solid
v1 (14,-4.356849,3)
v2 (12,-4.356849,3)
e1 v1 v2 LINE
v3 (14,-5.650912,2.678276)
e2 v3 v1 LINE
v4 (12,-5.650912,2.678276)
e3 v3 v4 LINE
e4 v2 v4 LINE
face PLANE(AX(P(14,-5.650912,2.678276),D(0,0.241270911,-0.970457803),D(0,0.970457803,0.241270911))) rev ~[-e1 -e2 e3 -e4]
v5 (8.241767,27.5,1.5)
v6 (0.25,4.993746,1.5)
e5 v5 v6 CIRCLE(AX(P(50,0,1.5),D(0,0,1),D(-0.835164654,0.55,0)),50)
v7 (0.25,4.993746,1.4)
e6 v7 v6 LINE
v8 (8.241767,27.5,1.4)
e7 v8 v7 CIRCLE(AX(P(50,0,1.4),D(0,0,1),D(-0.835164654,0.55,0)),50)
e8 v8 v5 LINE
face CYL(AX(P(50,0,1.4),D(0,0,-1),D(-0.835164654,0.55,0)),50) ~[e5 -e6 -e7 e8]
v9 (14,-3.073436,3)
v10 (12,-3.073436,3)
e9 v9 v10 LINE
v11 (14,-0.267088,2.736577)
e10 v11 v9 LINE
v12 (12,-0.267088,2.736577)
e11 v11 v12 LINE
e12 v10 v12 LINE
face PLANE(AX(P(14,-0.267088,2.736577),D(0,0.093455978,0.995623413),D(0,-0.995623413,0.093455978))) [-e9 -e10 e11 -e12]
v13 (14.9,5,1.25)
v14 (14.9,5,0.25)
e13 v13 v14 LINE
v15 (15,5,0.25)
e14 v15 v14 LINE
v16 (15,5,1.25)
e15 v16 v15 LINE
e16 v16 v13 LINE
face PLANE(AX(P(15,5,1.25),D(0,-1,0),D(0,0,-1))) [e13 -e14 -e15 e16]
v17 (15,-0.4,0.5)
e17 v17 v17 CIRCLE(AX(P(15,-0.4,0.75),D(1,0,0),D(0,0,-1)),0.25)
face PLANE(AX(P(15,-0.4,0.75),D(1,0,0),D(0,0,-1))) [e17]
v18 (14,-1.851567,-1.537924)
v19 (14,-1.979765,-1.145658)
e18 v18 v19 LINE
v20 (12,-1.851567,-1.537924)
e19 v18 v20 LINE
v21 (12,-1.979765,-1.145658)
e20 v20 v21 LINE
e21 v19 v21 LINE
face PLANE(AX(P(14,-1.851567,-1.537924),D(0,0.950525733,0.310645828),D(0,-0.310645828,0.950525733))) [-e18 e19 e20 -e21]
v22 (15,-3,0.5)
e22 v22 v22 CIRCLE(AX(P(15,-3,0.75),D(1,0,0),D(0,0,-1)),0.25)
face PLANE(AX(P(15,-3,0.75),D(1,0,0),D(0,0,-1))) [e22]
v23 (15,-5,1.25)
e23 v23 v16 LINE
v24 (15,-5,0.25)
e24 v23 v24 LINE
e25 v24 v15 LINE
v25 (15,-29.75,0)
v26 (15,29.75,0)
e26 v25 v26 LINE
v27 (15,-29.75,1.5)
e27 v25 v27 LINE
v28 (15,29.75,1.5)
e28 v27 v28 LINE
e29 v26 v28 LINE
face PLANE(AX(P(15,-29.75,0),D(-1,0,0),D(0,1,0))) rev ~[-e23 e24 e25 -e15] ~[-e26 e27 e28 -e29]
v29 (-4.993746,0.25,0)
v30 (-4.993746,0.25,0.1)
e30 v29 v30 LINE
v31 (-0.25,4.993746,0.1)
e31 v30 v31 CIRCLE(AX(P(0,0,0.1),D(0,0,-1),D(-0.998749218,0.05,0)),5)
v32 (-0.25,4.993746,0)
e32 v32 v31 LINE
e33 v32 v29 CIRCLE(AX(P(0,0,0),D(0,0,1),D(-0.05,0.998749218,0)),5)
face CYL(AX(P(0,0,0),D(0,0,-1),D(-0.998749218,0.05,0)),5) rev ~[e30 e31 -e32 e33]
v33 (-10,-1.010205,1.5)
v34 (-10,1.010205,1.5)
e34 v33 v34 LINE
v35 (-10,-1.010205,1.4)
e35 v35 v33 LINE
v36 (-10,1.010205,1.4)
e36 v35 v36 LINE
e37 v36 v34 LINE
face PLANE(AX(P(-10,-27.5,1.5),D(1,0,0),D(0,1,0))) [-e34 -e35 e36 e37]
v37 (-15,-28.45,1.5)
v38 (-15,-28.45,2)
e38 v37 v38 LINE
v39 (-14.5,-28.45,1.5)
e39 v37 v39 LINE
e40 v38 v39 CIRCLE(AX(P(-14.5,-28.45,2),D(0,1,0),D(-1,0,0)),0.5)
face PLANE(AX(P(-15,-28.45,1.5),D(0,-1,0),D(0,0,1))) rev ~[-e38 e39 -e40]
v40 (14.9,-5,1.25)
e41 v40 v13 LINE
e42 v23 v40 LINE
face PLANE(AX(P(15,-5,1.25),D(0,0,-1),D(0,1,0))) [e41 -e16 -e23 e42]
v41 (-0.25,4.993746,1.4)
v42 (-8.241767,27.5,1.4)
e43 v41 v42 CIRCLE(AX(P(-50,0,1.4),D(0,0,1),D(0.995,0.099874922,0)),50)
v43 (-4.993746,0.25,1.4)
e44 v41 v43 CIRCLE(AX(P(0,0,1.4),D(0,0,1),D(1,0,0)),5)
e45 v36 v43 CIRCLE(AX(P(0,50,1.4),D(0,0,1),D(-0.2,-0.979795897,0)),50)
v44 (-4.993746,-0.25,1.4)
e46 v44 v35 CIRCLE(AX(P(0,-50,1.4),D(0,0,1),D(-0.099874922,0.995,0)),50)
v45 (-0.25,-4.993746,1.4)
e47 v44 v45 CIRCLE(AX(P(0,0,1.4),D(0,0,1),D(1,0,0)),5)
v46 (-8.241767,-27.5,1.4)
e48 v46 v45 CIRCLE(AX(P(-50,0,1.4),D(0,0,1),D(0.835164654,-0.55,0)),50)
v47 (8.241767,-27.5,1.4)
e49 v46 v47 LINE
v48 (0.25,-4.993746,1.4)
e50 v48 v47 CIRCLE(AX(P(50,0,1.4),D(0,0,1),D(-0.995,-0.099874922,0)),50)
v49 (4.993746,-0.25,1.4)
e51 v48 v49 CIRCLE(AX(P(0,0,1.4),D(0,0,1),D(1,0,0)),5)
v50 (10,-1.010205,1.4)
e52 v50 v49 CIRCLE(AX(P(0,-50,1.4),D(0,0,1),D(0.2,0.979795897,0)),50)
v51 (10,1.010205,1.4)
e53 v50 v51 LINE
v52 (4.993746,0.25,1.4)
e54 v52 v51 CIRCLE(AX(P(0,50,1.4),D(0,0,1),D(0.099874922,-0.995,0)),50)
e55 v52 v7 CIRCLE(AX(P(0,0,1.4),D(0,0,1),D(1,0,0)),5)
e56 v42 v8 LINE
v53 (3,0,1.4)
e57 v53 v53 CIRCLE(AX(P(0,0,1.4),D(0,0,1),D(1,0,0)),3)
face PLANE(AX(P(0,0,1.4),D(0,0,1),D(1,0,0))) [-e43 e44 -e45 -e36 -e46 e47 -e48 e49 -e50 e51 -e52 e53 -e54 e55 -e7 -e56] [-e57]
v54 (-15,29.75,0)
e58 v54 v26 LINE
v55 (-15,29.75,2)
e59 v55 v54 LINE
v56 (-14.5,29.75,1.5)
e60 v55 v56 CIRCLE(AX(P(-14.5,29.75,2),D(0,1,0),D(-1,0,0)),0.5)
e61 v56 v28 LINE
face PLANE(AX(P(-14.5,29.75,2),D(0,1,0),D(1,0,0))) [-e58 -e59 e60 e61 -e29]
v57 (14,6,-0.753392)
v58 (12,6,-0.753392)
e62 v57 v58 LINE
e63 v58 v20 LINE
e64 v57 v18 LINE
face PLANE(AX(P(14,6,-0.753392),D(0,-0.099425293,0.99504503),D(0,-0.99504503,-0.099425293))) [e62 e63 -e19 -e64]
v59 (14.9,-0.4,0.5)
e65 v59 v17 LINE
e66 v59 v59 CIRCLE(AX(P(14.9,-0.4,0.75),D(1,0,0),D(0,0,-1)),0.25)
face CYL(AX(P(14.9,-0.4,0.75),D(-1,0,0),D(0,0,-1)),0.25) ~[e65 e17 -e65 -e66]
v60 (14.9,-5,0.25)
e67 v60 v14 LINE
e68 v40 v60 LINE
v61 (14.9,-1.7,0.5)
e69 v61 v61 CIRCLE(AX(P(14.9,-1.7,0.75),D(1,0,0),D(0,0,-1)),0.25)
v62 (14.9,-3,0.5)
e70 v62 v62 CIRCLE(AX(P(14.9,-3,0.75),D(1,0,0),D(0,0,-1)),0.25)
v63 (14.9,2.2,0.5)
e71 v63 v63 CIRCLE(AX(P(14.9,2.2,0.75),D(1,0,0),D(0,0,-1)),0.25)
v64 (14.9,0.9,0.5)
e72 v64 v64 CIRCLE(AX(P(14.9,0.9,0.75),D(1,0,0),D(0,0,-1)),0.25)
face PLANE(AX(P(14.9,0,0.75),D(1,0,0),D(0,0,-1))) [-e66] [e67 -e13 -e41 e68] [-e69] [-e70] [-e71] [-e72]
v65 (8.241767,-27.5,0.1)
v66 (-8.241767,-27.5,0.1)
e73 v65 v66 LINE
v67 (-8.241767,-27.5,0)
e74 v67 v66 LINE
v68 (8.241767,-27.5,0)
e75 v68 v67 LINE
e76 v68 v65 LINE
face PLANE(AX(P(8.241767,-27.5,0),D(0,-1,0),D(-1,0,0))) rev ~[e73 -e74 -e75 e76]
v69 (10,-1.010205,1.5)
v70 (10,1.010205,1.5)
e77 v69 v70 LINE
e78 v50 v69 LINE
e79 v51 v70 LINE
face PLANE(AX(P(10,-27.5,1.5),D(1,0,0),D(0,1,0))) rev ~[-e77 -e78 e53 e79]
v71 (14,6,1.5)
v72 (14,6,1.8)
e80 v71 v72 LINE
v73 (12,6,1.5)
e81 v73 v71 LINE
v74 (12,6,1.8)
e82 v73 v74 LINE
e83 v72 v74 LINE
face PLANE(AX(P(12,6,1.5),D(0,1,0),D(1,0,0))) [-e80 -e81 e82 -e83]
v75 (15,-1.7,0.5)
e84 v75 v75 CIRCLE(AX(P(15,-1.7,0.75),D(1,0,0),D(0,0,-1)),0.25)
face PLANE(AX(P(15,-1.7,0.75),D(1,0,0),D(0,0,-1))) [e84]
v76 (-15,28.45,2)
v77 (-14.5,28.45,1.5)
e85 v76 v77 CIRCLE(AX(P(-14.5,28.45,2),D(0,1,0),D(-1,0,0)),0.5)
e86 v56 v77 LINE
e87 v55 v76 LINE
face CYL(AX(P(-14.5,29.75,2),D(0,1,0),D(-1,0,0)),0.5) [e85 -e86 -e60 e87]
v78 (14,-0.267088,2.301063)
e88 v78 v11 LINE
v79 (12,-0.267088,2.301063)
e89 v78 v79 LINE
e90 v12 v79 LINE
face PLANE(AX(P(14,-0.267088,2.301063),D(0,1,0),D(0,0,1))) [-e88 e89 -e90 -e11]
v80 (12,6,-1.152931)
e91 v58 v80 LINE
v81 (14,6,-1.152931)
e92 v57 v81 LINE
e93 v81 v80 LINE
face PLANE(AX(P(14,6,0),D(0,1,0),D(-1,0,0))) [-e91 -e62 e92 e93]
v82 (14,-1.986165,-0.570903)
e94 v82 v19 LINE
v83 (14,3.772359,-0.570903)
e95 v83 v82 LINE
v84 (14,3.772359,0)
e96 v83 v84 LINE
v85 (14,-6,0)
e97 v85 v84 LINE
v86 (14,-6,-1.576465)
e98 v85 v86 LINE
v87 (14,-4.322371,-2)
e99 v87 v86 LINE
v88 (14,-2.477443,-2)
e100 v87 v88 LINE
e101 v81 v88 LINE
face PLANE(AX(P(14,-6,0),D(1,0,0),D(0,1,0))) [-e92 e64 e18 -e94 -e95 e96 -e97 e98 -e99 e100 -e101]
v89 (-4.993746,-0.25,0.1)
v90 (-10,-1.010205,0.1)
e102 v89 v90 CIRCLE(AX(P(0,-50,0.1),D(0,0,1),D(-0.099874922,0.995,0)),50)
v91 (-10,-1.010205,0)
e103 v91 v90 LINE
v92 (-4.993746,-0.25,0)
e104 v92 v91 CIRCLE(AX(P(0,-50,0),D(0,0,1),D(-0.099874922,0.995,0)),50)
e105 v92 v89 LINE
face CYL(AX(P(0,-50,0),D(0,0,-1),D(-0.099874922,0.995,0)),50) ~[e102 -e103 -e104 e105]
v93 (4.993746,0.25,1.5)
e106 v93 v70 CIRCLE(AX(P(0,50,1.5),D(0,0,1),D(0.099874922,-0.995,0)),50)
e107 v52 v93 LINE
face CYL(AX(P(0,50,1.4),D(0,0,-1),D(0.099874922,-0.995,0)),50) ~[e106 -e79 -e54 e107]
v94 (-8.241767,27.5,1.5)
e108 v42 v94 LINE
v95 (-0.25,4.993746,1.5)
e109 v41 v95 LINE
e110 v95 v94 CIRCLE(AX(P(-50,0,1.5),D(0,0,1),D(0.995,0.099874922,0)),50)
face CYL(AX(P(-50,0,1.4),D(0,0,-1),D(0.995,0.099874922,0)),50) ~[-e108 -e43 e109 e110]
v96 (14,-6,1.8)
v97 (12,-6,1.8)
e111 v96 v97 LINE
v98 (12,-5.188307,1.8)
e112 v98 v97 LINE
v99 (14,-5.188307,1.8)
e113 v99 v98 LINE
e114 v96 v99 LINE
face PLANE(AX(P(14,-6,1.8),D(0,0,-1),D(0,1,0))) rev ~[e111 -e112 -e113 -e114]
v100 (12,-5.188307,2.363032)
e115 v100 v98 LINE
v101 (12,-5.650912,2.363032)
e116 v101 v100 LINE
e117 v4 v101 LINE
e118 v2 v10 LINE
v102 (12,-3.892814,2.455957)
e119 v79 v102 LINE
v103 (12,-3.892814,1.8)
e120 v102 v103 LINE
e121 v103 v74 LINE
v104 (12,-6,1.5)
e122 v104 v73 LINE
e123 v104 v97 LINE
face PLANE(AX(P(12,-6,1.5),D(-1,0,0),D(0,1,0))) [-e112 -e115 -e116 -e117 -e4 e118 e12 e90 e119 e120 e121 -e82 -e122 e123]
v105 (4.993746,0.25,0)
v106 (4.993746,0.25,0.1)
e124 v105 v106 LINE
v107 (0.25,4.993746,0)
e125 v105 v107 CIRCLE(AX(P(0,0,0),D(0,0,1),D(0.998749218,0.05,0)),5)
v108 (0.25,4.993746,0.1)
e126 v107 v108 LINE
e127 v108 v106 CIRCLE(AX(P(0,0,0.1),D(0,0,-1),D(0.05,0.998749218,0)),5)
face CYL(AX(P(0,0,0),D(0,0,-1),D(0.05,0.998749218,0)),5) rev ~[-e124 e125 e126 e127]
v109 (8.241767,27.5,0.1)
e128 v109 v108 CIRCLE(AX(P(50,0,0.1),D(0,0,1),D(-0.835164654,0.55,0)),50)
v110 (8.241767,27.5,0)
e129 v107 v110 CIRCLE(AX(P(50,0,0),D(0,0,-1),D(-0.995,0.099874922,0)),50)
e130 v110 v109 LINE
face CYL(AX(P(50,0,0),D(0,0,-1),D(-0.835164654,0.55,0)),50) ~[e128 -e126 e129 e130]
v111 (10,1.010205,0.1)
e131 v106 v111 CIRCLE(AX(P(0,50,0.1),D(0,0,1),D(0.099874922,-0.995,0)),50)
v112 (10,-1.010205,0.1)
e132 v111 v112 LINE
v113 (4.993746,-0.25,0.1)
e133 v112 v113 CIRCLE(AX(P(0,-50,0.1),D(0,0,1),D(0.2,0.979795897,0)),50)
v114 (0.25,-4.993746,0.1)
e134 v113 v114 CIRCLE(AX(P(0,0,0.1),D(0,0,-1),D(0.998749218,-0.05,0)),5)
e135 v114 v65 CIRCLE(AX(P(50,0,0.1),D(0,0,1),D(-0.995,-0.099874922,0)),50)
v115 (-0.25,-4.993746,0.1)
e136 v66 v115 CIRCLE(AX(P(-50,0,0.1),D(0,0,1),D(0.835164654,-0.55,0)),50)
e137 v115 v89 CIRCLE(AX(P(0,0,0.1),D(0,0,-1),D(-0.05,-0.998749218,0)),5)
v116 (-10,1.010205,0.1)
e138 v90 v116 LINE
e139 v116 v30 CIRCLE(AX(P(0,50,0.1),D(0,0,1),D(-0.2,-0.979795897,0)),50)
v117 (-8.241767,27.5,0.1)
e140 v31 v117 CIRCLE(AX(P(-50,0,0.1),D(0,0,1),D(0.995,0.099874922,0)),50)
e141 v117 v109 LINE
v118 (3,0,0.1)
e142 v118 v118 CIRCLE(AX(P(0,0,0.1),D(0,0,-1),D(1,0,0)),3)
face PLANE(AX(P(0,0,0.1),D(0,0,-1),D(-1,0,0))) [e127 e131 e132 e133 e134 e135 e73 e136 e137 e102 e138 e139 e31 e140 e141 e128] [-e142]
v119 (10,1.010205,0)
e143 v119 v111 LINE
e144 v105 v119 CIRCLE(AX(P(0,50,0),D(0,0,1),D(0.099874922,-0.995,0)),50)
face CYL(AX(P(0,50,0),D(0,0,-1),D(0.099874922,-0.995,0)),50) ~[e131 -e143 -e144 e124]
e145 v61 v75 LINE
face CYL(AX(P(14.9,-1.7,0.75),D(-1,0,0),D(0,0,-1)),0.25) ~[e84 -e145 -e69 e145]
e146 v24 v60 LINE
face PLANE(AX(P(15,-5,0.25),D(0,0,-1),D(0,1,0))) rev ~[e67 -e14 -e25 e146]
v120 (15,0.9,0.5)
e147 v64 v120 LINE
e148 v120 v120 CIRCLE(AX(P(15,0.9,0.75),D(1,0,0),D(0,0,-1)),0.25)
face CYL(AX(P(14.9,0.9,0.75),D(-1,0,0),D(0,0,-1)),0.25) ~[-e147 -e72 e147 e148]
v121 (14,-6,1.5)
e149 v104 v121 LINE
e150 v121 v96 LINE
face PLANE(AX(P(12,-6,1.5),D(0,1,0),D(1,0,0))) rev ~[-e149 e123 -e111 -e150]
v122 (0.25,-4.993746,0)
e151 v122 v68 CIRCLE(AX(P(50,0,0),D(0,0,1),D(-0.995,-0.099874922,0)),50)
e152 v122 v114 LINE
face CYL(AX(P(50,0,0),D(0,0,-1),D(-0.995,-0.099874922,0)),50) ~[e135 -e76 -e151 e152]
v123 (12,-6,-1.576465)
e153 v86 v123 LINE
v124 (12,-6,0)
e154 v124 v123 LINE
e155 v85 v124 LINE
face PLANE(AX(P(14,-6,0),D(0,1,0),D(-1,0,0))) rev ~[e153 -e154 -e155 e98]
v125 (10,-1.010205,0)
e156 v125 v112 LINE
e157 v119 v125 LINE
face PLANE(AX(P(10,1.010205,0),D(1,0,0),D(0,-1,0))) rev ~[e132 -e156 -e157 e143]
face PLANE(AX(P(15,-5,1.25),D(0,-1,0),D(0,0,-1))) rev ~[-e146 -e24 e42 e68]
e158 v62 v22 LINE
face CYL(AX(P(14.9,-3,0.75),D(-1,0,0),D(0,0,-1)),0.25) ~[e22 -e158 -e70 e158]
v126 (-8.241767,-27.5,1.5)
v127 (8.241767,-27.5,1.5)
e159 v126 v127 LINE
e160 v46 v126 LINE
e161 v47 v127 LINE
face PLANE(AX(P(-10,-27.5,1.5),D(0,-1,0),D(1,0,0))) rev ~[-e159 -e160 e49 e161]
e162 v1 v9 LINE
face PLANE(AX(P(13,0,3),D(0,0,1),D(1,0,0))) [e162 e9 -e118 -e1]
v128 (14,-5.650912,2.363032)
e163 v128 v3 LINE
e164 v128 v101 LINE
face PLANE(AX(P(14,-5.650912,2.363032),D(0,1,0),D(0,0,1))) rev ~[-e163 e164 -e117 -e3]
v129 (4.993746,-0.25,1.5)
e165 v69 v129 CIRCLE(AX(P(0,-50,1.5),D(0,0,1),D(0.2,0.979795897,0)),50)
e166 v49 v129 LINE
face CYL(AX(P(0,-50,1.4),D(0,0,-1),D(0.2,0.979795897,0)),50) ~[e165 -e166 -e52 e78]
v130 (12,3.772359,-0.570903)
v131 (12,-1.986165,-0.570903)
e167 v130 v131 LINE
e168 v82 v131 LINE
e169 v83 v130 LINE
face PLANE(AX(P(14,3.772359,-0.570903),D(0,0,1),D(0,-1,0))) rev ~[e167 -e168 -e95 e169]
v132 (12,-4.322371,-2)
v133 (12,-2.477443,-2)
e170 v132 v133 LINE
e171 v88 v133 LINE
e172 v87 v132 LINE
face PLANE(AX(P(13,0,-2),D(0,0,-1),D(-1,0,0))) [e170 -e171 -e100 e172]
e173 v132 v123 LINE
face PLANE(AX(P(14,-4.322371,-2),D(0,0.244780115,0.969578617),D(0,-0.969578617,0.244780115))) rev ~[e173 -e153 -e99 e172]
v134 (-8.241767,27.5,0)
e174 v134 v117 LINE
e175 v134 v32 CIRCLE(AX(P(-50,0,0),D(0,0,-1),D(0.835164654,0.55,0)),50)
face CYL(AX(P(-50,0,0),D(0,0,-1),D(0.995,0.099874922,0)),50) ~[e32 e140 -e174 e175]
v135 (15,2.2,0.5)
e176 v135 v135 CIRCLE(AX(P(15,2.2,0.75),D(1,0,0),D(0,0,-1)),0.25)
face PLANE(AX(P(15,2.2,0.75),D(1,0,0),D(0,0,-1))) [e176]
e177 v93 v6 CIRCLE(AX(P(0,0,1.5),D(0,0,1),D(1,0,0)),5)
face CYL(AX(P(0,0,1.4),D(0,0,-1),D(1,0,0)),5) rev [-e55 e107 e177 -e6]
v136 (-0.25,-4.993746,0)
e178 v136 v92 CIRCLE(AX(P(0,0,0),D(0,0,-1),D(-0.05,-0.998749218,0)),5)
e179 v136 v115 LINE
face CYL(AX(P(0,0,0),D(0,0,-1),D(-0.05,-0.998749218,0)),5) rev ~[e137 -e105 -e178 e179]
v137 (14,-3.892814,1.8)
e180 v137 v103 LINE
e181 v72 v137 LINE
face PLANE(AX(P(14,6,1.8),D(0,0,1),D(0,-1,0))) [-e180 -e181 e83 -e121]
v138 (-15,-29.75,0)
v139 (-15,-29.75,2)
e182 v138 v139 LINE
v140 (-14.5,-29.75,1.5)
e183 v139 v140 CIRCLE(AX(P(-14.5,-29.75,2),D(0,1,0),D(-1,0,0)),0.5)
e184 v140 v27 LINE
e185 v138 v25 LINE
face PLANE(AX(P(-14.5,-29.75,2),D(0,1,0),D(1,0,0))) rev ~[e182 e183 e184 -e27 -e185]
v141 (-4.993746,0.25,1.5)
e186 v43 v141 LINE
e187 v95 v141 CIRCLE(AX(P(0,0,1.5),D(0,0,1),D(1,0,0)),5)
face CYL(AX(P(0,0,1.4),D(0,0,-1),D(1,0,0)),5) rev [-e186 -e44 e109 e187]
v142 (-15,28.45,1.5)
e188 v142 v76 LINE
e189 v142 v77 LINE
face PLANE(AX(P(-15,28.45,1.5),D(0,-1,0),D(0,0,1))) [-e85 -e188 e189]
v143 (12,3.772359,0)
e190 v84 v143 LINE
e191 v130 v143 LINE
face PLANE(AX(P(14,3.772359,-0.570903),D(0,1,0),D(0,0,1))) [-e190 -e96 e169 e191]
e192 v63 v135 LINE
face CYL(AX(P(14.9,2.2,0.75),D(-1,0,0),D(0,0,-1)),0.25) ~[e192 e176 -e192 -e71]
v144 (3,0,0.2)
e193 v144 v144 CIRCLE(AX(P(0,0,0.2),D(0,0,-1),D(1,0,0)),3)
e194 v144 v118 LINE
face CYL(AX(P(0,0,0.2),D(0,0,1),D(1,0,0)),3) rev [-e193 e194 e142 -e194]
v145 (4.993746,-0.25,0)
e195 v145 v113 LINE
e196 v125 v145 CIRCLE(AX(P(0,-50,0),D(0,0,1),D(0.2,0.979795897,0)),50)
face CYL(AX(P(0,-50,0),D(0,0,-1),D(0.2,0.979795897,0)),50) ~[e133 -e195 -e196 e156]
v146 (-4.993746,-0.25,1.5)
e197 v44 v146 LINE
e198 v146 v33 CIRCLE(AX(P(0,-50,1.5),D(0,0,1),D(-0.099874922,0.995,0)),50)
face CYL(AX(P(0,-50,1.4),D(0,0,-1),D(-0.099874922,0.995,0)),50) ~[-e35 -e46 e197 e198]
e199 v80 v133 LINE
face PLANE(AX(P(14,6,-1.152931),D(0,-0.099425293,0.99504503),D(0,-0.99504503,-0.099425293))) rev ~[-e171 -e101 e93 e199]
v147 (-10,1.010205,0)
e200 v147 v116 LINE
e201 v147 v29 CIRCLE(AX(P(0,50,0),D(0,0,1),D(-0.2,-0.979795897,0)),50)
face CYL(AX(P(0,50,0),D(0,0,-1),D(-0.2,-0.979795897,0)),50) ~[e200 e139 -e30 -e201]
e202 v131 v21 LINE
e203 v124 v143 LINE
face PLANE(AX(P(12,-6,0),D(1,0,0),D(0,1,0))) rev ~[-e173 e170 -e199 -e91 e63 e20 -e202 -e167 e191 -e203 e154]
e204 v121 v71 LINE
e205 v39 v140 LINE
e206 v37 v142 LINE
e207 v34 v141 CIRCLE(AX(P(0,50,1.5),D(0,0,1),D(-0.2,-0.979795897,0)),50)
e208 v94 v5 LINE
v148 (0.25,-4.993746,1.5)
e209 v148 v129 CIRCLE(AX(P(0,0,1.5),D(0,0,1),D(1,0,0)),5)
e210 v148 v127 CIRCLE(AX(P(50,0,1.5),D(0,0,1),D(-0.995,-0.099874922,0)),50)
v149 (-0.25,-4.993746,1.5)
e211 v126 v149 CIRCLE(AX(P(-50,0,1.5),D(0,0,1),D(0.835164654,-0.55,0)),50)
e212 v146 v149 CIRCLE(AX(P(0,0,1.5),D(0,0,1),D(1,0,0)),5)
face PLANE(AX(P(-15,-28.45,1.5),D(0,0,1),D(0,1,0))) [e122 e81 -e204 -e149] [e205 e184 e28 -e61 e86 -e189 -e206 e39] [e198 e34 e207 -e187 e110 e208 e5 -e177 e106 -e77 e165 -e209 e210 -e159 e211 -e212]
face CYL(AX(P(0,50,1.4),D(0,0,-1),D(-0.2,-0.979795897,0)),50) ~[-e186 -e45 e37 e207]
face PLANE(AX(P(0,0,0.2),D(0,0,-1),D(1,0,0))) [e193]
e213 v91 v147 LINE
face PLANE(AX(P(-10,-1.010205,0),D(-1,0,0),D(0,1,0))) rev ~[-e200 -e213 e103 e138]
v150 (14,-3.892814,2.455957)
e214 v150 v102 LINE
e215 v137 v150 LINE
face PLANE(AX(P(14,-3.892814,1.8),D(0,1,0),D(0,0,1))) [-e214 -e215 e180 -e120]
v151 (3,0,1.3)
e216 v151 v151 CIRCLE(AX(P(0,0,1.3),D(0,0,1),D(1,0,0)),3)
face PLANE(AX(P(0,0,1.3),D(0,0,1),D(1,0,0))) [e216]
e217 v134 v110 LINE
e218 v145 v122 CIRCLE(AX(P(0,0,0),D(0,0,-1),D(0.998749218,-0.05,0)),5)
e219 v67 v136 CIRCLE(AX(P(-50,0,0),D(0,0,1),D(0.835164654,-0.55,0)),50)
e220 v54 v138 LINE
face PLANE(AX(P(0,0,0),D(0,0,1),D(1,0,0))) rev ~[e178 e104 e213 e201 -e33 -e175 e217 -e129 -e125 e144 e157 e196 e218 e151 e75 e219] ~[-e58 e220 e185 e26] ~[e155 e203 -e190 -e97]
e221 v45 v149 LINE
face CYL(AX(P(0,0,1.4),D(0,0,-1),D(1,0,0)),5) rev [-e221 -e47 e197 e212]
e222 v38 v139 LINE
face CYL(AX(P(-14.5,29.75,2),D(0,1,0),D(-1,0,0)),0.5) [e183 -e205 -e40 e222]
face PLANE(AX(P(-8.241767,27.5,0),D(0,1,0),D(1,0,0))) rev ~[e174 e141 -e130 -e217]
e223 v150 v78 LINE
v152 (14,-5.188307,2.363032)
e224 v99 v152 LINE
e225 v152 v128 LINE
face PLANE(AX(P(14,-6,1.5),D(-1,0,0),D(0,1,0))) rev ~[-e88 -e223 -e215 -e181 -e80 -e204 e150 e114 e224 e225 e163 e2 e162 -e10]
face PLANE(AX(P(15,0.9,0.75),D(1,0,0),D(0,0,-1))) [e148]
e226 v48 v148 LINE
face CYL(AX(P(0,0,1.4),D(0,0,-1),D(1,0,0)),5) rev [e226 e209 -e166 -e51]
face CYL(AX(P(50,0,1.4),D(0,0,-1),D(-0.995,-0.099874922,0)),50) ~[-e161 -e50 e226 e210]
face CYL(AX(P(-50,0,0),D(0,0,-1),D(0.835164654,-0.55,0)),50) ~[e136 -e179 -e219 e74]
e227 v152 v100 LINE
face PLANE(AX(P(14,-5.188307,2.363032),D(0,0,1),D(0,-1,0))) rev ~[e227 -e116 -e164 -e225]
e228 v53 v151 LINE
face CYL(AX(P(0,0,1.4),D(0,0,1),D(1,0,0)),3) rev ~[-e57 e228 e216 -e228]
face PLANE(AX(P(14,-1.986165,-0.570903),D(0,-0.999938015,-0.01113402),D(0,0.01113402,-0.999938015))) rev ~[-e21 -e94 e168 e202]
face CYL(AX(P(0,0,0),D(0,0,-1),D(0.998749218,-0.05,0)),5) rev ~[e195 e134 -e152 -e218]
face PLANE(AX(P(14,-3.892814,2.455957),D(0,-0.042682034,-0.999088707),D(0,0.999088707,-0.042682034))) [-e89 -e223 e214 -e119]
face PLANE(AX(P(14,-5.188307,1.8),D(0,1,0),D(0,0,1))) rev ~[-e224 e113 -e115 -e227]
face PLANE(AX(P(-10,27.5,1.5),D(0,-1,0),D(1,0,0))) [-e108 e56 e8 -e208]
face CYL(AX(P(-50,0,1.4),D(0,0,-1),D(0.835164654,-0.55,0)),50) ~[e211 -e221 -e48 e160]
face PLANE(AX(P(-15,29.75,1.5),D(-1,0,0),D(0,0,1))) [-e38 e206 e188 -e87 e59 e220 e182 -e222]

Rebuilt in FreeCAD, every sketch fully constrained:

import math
import FreeCAD as App
import Part
import Sketcher
from FreeCAD import Vector
Q = App.Units.Quantity

doc = App.newDocument("Part")
body = doc.addObject("PartDesign::Body", "Body")

sketch1 = doc.addObject("Sketcher::SketchObject", "Sketch")
body.addObject(sketch1)
sketch1.AttachmentSupport = (doc.XY_Plane, [""])
sketch1.MapMode = "FlatFace"
sketch1.addGeometry([
    Part.LineSegment(Vector(-15, 30, 0), Vector(-15, -30, 0)),
    Part.LineSegment(Vector(-15, -30, 0), Vector(15, -30, 0)),
    Part.LineSegment(Vector(15, -30, 0), Vector(15, 30, 0)),
    Part.LineSegment(Vector(15, 30, 0), Vector(-15, 30, 0)),
], False)
sketch1.addConstraint([
    Sketcher.Constraint("Coincident", 0, 2, 1, 1),
    Sketcher.Constraint("Coincident", 1, 2, 2, 1),
    Sketcher.Constraint("Coincident", 2, 2, 3, 1),
    Sketcher.Constraint("Coincident", 3, 2, 0, 1),
    Sketcher.Constraint("Vertical", 0),
    Sketcher.Constraint("Horizontal", 1),
    Sketcher.Constraint("Vertical", 2),
    Sketcher.Constraint("Horizontal", 3),
    Sketcher.Constraint("Symmetric", 0, 2, 2, 2, -1, 1),
    Sketcher.Constraint("DistanceX", 1, 1, 1, 2, Q("30 mm")),
    Sketcher.Constraint("DistanceY", 0, 2, 0, 1, Q("59.5 mm")),
])
pad1 = doc.addObject("PartDesign::Pad", "Pad")
body.addObject(pad1)
pad1.Profile = sketch1
pad1.Length = 1.5

sketch2 = doc.addObject("Sketcher::SketchObject", "Sketch001")
body.addObject(sketch2)
sketch2.AttachmentSupport = (doc.XY_Plane, [""])
sketch2.MapMode = "FlatFace"
sketch2.AttachmentOffset = App.Placement(Vector(0, 0, 1.5), App.Rotation())
sketch2.addGeometry([
    Part.LineSegment(Vector(-10, 28, 0), Vector(-10, -28, 0)),
    Part.LineSegment(Vector(-10, -28, 0), Vector(10, -28, 0)),
    Part.LineSegment(Vector(10, -28, 0), Vector(10, 28, 0)),
    Part.LineSegment(Vector(10, 28, 0), Vector(-10, 28, 0)),
], False)
sketch2.addConstraint([
    Sketcher.Constraint("Coincident", 0, 2, 1, 1),
    Sketcher.Constraint("Coincident", 1, 2, 2, 1),
    Sketcher.Constraint("Coincident", 2, 2, 3, 1),
    Sketcher.Constraint("Coincident", 3, 2, 0, 1),
    Sketcher.Constraint("Vertical", 0),
    Sketcher.Constraint("Horizontal", 1),
    Sketcher.Constraint("Vertical", 2),
    Sketcher.Constraint("Horizontal", 3),
    Sketcher.Constraint("Symmetric", 0, 2, 2, 2, -1, 1),
    Sketcher.Constraint("DistanceX", 1, 1, 1, 2, Q("20 mm")),
    Sketcher.Constraint("DistanceY", 0, 2, 0, 1, Q("55 mm")),
])
pocket1 = doc.addObject("PartDesign::Pocket", "Pocket")
body.addObject(pocket1)
pocket1.Profile = sketch2
pocket1.Length = 0.1

sketch3 = doc.addObject("Sketcher::SketchObject", "Sketch002")
body.addObject(sketch3)
sketch3.AttachmentSupport = (doc.XY_Plane, [""])
sketch3.MapMode = "FlatFace"
sketch3.AttachmentOffset = App.Placement(Vector(0, 0, 1.4), App.Rotation())
sketch3.addGeometry(Part.Circle(Vector(0, 0, 0), Vector(0, 0, 1), 5), False)
sketch3.addConstraint([
    Sketcher.Constraint("Coincident", 0, 3, -1, 1),
    Sketcher.Constraint("Diameter", 0, Q("10 mm")),
])
pad2 = doc.addObject("PartDesign::Pad", "Pad001")
body.addObject(pad2)
pad2.Profile = sketch3
pad2.Length = 0.1

sketch4 = doc.addObject("Sketcher::SketchObject", "Sketch003")
body.addObject(sketch4)
sketch4.AttachmentSupport = (doc.XY_Plane, [""])
sketch4.MapMode = "FlatFace"
sketch4.AttachmentOffset = App.Placement(Vector(0, 0, 1.4), App.Rotation())
sketch4.addGeometry([
    Part.ArcOfCircle(Part.Circle(Vector(0, 50, 0), Vector(0, 0, 1), 50), math.radians(-84.27), math.radians(-78.46)),
    Part.LineSegment(Vector(10, 1, 0), Vector(10, 27.5, 0)),
    Part.LineSegment(Vector(10, 27.5, 0), Vector(8.2, 27.5, 0)),
    Part.ArcOfCircle(Part.Circle(Vector(50, 0, 0), Vector(0, 0, 1), 50), math.radians(147), math.radians(174)),
    Part.ArcOfCircle(Part.Circle(Vector(0, 0, 0), Vector(0, 0, 1), 5), math.radians(3), math.radians(87)),
    Part.ArcOfCircle(Part.Circle(Vector(50, 0, 0), Vector(0, 0, 1), 50), math.radians(-174), math.radians(-147)),
    Part.LineSegment(Vector(8.2, -27.5, 0), Vector(10, -27.5, 0)),
    Part.LineSegment(Vector(10, -27.5, 0), Vector(10, -1, 0)),
    Part.ArcOfCircle(Part.Circle(Vector(0, -50, 0), Vector(0, 0, 1), 50), math.radians(78.46), math.radians(84.27)),
    Part.ArcOfCircle(Part.Circle(Vector(0, 0, 0), Vector(0, 0, 1), 5), math.radians(-87), math.radians(-3)),
    Part.LineSegment(Vector(-10, -27.5, 0), Vector(-8.2, -27.5, 0)),
    Part.ArcOfCircle(Part.Circle(Vector(-50, 0, 0), Vector(0, 0, 1), 50), math.radians(-33), math.radians(-6)),
    Part.ArcOfCircle(Part.Circle(Vector(0, 0, 0), Vector(0, 0, 1), 5), math.radians(-177), math.radians(-93)),
    Part.ArcOfCircle(Part.Circle(Vector(0, -50, 0), Vector(0, 0, 1), 50), math.radians(95.73), math.radians(101.54)),
    Part.LineSegment(Vector(-10, -1, 0), Vector(-10, -27.5, 0)),
    Part.LineSegment(Vector(-10, 27.5, 0), Vector(-10, 1, 0)),
    Part.ArcOfCircle(Part.Circle(Vector(0, 50, 0), Vector(0, 0, 1), 50), math.radians(-101.54), math.radians(-95.73)),
    Part.ArcOfCircle(Part.Circle(Vector(0, 0, 0), Vector(0, 0, 1), 5), math.radians(93), math.radians(177)),
    Part.ArcOfCircle(Part.Circle(Vector(-50, 0, 0), Vector(0, 0, 1), 50), math.radians(6), math.radians(33)),
    Part.LineSegment(Vector(-8.2, 27.5, 0), Vector(-10, 27.5, 0)),
], False)
sketch4.addConstraint([
    Sketcher.Constraint("Coincident", 0, 2, 1, 1),
    Sketcher.Constraint("Coincident", 1, 2, 2, 1),
    Sketcher.Constraint("Coincident", 2, 2, 3, 1),
    Sketcher.Constraint("Coincident", 3, 2, 4, 2),
    Sketcher.Constraint("Coincident", 4, 1, 0, 1),
    Sketcher.Constraint("Coincident", 5, 2, 6, 1),
    Sketcher.Constraint("Coincident", 6, 2, 7, 1),
    Sketcher.Constraint("Coincident", 7, 2, 8, 1),
    Sketcher.Constraint("Coincident", 8, 2, 9, 2),
    Sketcher.Constraint("Coincident", 9, 1, 5, 1),
    Sketcher.Constraint("Coincident", 10, 2, 11, 1),
    Sketcher.Constraint("Coincident", 11, 2, 12, 2),
    Sketcher.Constraint("Coincident", 12, 1, 13, 1),
    Sketcher.Constraint("Coincident", 13, 2, 14, 1),
    Sketcher.Constraint("Coincident", 14, 2, 10, 1),
    Sketcher.Constraint("Coincident", 15, 2, 16, 1),
    Sketcher.Constraint("Coincident", 16, 2, 17, 2),
    Sketcher.Constraint("Coincident", 17, 1, 18, 1),
    Sketcher.Constraint("Coincident", 18, 2, 19, 1),
    Sketcher.Constraint("Coincident", 19, 2, 15, 1),
    Sketcher.Constraint("Vertical", 1),
    Sketcher.Constraint("Horizontal", 2),
    Sketcher.Constraint("Horizontal", 6),
    Sketcher.Constraint("Vertical", 7),
    Sketcher.Constraint("Horizontal", 10),
    Sketcher.Constraint("Vertical", 14),
    Sketcher.Constraint("Vertical", 15),
    Sketcher.Constraint("Horizontal", 19),
    Sketcher.Constraint("Coincident", 4, 3, -1, 1),
    Sketcher.Constraint("Coincident", 9, 3, -1, 1),
    Sketcher.Constraint("Coincident", 12, 3, -1, 1),
    Sketcher.Constraint("Coincident", 17, 3, -1, 1),
    Sketcher.Constraint("Coincident", 5, 3, 3, 3),
    Sketcher.Constraint("Coincident", 13, 3, 8, 3),
    Sketcher.Constraint("Coincident", 16, 3, 0, 3),
    Sketcher.Constraint("Coincident", 18, 3, 11, 3),
    Sketcher.Constraint("Equal", 0, 3),
    Sketcher.Constraint("Equal", 3, 5),
    Sketcher.Constraint("Equal", 5, 8),
    Sketcher.Constraint("Equal", 4, 9),
    Sketcher.Constraint("Equal", 8, 11),
    Sketcher.Constraint("Equal", 9, 12),
    Sketcher.Constraint("Equal", 11, 13),
    Sketcher.Constraint("Equal", 13, 16),
    Sketcher.Constraint("Equal", 12, 17),
    Sketcher.Constraint("Equal", 16, 18),
    Sketcher.Constraint("Symmetric", 0, 3, 8, 3, -1, 1),
    Sketcher.Constraint("Symmetric", 3, 3, 11, 3, -1, 1),
    Sketcher.Constraint("Symmetric", 1, 2, 14, 2, -1, 1),
    Sketcher.Constraint("Symmetric", 6, 2, 19, 2, -1, 1),
    Sketcher.Constraint("Symmetric", 5, 2, 10, 2, -2),
    Sketcher.Constraint("Symmetric", 7, 2, 13, 2, -2),
    Sketcher.Constraint("Radius", 0, Q("50 mm")),
    Sketcher.Constraint("Radius", 4, Q("5 mm")),
    Sketcher.Constraint("DistanceY", -1, 1, 0, 3, Q("50 mm")),
    Sketcher.Constraint("DistanceX", -1, 1, 3, 3, Q("50 mm")),
    Sketcher.Constraint("DistanceX", -1, 1, 0, 2, Q("10 mm")),
    Sketcher.Constraint("DistanceY", -1, 1, 1, 2, Q("27.5 mm")),
])
pad3 = doc.addObject("PartDesign::Pad", "Pad002")
body.addObject(pad3)
pad3.Profile = sketch4
pad3.Length = 0.1

sketch5 = doc.addObject("Sketcher::SketchObject", "Sketch004")
body.addObject(sketch5)
sketch5.AttachmentSupport = (doc.XY_Plane, [""])
sketch5.MapMode = "FlatFace"
sketch5.AttachmentOffset = App.Placement(Vector(0, 0, 1.4), App.Rotation())
sketch5.addGeometry(Part.Circle(Vector(0, 0, 0), Vector(0, 0, 1), 5), False)
sketch5.addConstraint([
    Sketcher.Constraint("Coincident", 0, 3, -1, 1),
    Sketcher.Constraint("Diameter", 0, Q("10 mm")),
])
pocket2 = doc.addObject("PartDesign::Pocket", "Pocket001")
body.addObject(pocket2)
pocket2.Profile = sketch5
pocket2.Length = 0.1
pocket2.Reversed = True

sketch6 = doc.addObject("Sketcher::SketchObject", "Sketch005")
body.addObject(sketch6)
sketch6.AttachmentSupport = (doc.XY_Plane, [""])
sketch6.MapMode = "FlatFace"
sketch6.AttachmentOffset = App.Placement(Vector(0, 0, 1.4), App.Rotation())
sketch6.addGeometry(Part.Circle(Vector(0, 0, 0), Vector(0, 0, 1), 3), False)
sketch6.addConstraint([
    Sketcher.Constraint("Coincident", 0, 3, -1, 1),
    Sketcher.Constraint("Diameter", 0, Q("6 mm")),
])
pocket3 = doc.addObject("PartDesign::Pocket", "Pocket002")
body.addObject(pocket3)
pocket3.Profile = sketch6
pocket3.Length = 0.1

sketch7 = doc.addObject("Sketcher::SketchObject", "Sketch006")
body.addObject(sketch7)
sketch7.AttachmentSupport = (doc.XY_Plane, [""])
sketch7.MapMode = "FlatFace"
sketch7.addGeometry([
    Part.LineSegment(Vector(8.2, -27.5, 0), Vector(-8.2, -27.5, 0)),
    Part.ArcOfCircle(Part.Circle(Vector(-50, 0, 0), Vector(0, 0, 1), 50), math.radians(-33), math.radians(-6)),
    Part.ArcOfCircle(Part.Circle(Vector(0, 0, 0), Vector(0, 0, 1), 5), math.radians(-177), math.radians(-93)),
    Part.ArcOfCircle(Part.Circle(Vector(0, -50, 0), Vector(0, 0, 1), 50), math.radians(95.73), math.radians(101.54)),
    Part.LineSegment(Vector(-10, -1, 0), Vector(-10, 1, 0)),
    Part.ArcOfCircle(Part.Circle(Vector(0, 50, 0), Vector(0, 0, 1), 50), math.radians(-101.54), math.radians(-95.73)),
    Part.ArcOfCircle(Part.Circle(Vector(0, 0, 0), Vector(0, 0, 1), 5), math.radians(93), math.radians(177)),
    Part.ArcOfCircle(Part.Circle(Vector(-50, 0, 0), Vector(0, 0, 1), 50), math.radians(6), math.radians(33)),
    Part.LineSegment(Vector(-8.2, 27.5, 0), Vector(8.2, 27.5, 0)),
    Part.ArcOfCircle(Part.Circle(Vector(50, 0, 0), Vector(0, 0, 1), 50), math.radians(147), math.radians(174)),
    Part.ArcOfCircle(Part.Circle(Vector(0, 0, 0), Vector(0, 0, 1), 5), math.radians(3), math.radians(87)),
    Part.ArcOfCircle(Part.Circle(Vector(0, 50, 0), Vector(0, 0, 1), 50), math.radians(-84.27), math.radians(-78.46)),
    Part.LineSegment(Vector(10, 1, 0), Vector(10, -1, 0)),
    Part.ArcOfCircle(Part.Circle(Vector(0, -50, 0), Vector(0, 0, 1), 50), math.radians(78.46), math.radians(84.27)),
    Part.ArcOfCircle(Part.Circle(Vector(0, 0, 0), Vector(0, 0, 1), 5), math.radians(-87), math.radians(-3)),
    Part.ArcOfCircle(Part.Circle(Vector(50, 0, 0), Vector(0, 0, 1), 50), math.radians(-174), math.radians(-147)),
], False)
sketch7.addConstraint([
    Sketcher.Constraint("Coincident", 0, 2, 1, 1),
    Sketcher.Constraint("Coincident", 1, 2, 2, 2),
    Sketcher.Constraint("Coincident", 2, 1, 3, 1),
    Sketcher.Constraint("Coincident", 3, 2, 4, 1),
    Sketcher.Constraint("Coincident", 4, 2, 5, 1),
    Sketcher.Constraint("Coincident", 5, 2, 6, 2),
    Sketcher.Constraint("Coincident", 6, 1, 7, 1),
    Sketcher.Constraint("Coincident", 7, 2, 8, 1),
    Sketcher.Constraint("Coincident", 8, 2, 9, 1),
    Sketcher.Constraint("Coincident", 9, 2, 10, 2),
    Sketcher.Constraint("Coincident", 10, 1, 11, 1),
    Sketcher.Constraint("Coincident", 11, 2, 12, 1),
    Sketcher.Constraint("Coincident", 12, 2, 13, 1),
    Sketcher.Constraint("Coincident", 13, 2, 14, 2),
    Sketcher.Constraint("Coincident", 14, 1, 15, 1),
    Sketcher.Constraint("Coincident", 15, 2, 0, 1),
    Sketcher.Constraint("Horizontal", 0),
    Sketcher.Constraint("Vertical", 4),
    Sketcher.Constraint("Horizontal", 8),
    Sketcher.Constraint("Vertical", 12),
    Sketcher.Constraint("Coincident", 2, 3, -1, 1),
    Sketcher.Constraint("Coincident", 6, 3, -1, 1),
    Sketcher.Constraint("Coincident", 10, 3, -1, 1),
    Sketcher.Constraint("Coincident", 14, 3, -1, 1),
    Sketcher.Constraint("Coincident", 7, 3, 1, 3),
    Sketcher.Constraint("Coincident", 11, 3, 5, 3),
    Sketcher.Constraint("Coincident", 13, 3, 3, 3),
    Sketcher.Constraint("Coincident", 15, 3, 9, 3),
    Sketcher.Constraint("Equal", 1, 3),
    Sketcher.Constraint("Equal", 3, 5),
    Sketcher.Constraint("Equal", 2, 6),
    Sketcher.Constraint("Equal", 5, 7),
    Sketcher.Constraint("Equal", 7, 9),
    Sketcher.Constraint("Equal", 6, 10),
    Sketcher.Constraint("Equal", 9, 11),
    Sketcher.Constraint("Equal", 11, 13),
    Sketcher.Constraint("Equal", 10, 14),
    Sketcher.Constraint("Equal", 13, 15),
    Sketcher.Constraint("Symmetric", 3, 3, 5, 3, -1, 1),
    Sketcher.Constraint("Symmetric", 1, 3, 9, 3, -1, 1),
    Sketcher.Constraint("Symmetric", 4, 2, 11, 2, -2),
    Sketcher.Constraint("Symmetric", 0, 2, 7, 2, -1),
    Sketcher.Constraint("Radius", 1, Q("50 mm")),
    Sketcher.Constraint("Radius", 2, Q("5 mm")),
    Sketcher.Constraint("DistanceX", 1, 3, -1, 1, Q("50 mm")),
    Sketcher.Constraint("DistanceY", 3, 3, -1, 1, Q("50 mm")),
    Sketcher.Constraint("DistanceX", 3, 2, -1, 1, Q("10 mm")),
    Sketcher.Constraint("DistanceY", 0, 2, -1, 1, Q("27.5 mm")),
])
pocket4 = doc.addObject("PartDesign::Pocket", "Pocket003")
body.addObject(pocket4)
pocket4.Profile = sketch7
pocket4.Length = 0.1
pocket4.Reversed = True

sketch8 = doc.addObject("Sketcher::SketchObject", "Sketch007")
body.addObject(sketch8)
sketch8.AttachmentSupport = (doc.XY_Plane, [""])
sketch8.MapMode = "FlatFace"
sketch8.AttachmentOffset = App.Placement(Vector(0, 0, 0.2), App.Rotation())
sketch8.addGeometry(Part.Circle(Vector(0, 0, 0), Vector(0, 0, 1), 3), False)
sketch8.addConstraint([
    Sketcher.Constraint("Coincident", 0, 3, -1, 1),
    Sketcher.Constraint("Diameter", 0, Q("6 mm")),
])
pocket5 = doc.addObject("PartDesign::Pocket", "Pocket004")
body.addObject(pocket5)
pocket5.Profile = sketch8
pocket5.Length = 0.1

sketch9 = doc.addObject("Sketcher::SketchObject", "Sketch008")
body.addObject(sketch9)
sketch9.AttachmentSupport = (doc.YZ_Plane, [""])
sketch9.MapMode = "FlatFace"
sketch9.AttachmentOffset = App.Placement(Vector(0, 0, 15), App.Rotation())
sketch9.addGeometry([
    Part.LineSegment(Vector(5, 1.2, 0), Vector(-5, 1.2, 0)),
    Part.LineSegment(Vector(-5, 1.2, 0), Vector(-5, 0.2, 0)),
    Part.LineSegment(Vector(-5, 0.2, 0), Vector(5, 0.2, 0)),
    Part.LineSegment(Vector(5, 0.2, 0), Vector(5, 1.2, 0)),
], False)
sketch9.addConstraint([
    Sketcher.Constraint("Coincident", 0, 2, 1, 1),
    Sketcher.Constraint("Coincident", 1, 2, 2, 1),
    Sketcher.Constraint("Coincident", 2, 2, 3, 1),
    Sketcher.Constraint("Coincident", 3, 2, 0, 1),
    Sketcher.Constraint("Horizontal", 0),
    Sketcher.Constraint("Vertical", 1),
    Sketcher.Constraint("Horizontal", 2),
    Sketcher.Constraint("Vertical", 3),
    Sketcher.Constraint("DistanceX", 0, 2, 0, 1, Q("10 mm")),
    Sketcher.Constraint("DistanceY", 1, 2, 1, 1, Q("1 mm")),
    Sketcher.Constraint("DistanceX", 0, 2, -1, 1, Q("5 mm")),
    Sketcher.Constraint("DistanceY", -1, 1, 0, 2, Q("1.25 mm")),
])
pocket6 = doc.addObject("PartDesign::Pocket", "Pocket005")
body.addObject(pocket6)
pocket6.Profile = sketch9
pocket6.Length = 0.1

sketch10 = doc.addObject("Sketcher::SketchObject", "Sketch009")
body.addObject(sketch10)
sketch10.AttachmentSupport = (doc.YZ_Plane, [""])
sketch10.MapMode = "FlatFace"
sketch10.AttachmentOffset = App.Placement(Vector(0, 0, 14.9), App.Rotation())
sketch10.addGeometry([
    Part.Circle(Vector(-3, 0.75, 0), Vector(0, 0, 1), 0.25),
    Part.Circle(Vector(-1.7, 0.75, 0), Vector(0, 0, 1), 0.25),
    Part.Circle(Vector(-0.4, 0.75, 0), Vector(0, 0, 1), 0.25),
    Part.Circle(Vector(0.9, 0.75, 0), Vector(0, 0, 1), 0.25),
    Part.Circle(Vector(2.2, 0.75, 0), Vector(0, 0, 1), 0.25),
], False)
sketch10.addConstraint([
    Sketcher.Constraint("Equal", 0, 1),
    Sketcher.Constraint("Equal", 1, 2),
    Sketcher.Constraint("Equal", 2, 3),
    Sketcher.Constraint("Equal", 3, 4),
    Sketcher.Constraint("Horizontal", 0, 3, 1, 3),
    Sketcher.Constraint("Horizontal", 1, 3, 2, 3),
    Sketcher.Constraint("Horizontal", 2, 3, 3, 3),
    Sketcher.Constraint("Horizontal", 3, 3, 4, 3),
    Sketcher.Constraint("Diameter", 0, Q("0.5 mm")),
    Sketcher.Constraint("DistanceX", 0, 3, -1, 1, Q("3 mm")),
    Sketcher.Constraint("DistanceX", 1, 3, -1, 1, Q("1.7 mm")),
    Sketcher.Constraint("DistanceX", 2, 3, -1, 1, Q("0.4 mm")),
    Sketcher.Constraint("DistanceX", -1, 1, 3, 3, Q("0.9 mm")),
    Sketcher.Constraint("DistanceX", -1, 1, 4, 3, Q("2.2 mm")),
    Sketcher.Constraint("DistanceY", -1, 1, 0, 3, Q("0.75 mm")),
])
pad4 = doc.addObject("PartDesign::Pad", "Pad003")
body.addObject(pad4)
pad4.Profile = sketch10
pad4.Length = 0.1

sketch11 = doc.addObject("Sketcher::SketchObject", "Sketch010")
body.addObject(sketch11)
sketch11.AttachmentSupport = (doc.XY_Plane, [""])
sketch11.MapMode = "FlatFace"
sketch11.AttachmentOffset = App.Placement(Vector(0, 0, 1.5), App.Rotation())
sketch11.addGeometry([
    Part.LineSegment(Vector(12, 6, 0), Vector(12, -6, 0)),
    Part.LineSegment(Vector(12, -6, 0), Vector(14, -6, 0)),
    Part.LineSegment(Vector(14, -6, 0), Vector(14, 6, 0)),
    Part.LineSegment(Vector(14, 6, 0), Vector(12, 6, 0)),
], False)
sketch11.addConstraint([
    Sketcher.Constraint("Coincident", 0, 2, 1, 1),
    Sketcher.Constraint("Coincident", 1, 2, 2, 1),
    Sketcher.Constraint("Coincident", 2, 2, 3, 1),
    Sketcher.Constraint("Coincident", 3, 2, 0, 1),
    Sketcher.Constraint("Vertical", 0),
    Sketcher.Constraint("Horizontal", 1),
    Sketcher.Constraint("Vertical", 2),
    Sketcher.Constraint("Horizontal", 3),
    Sketcher.Constraint("DistanceX", 1, 1, 1, 2, Q("2 mm")),
    Sketcher.Constraint("DistanceY", 0, 2, 0, 1, Q("12 mm")),
    Sketcher.Constraint("DistanceX", -1, 1, 0, 2, Q("12 mm")),
    Sketcher.Constraint("DistanceY", 0, 2, -1, 1, Q("6 mm")),
])
pad5 = doc.addObject("PartDesign::Pad", "Pad004")
body.addObject(pad5)
pad5.Profile = sketch11
pad5.Length = 1.5

sketch12 = doc.addObject("Sketcher::SketchObject", "Sketch011")
body.addObject(sketch12)
sketch12.AttachmentSupport = (doc.YZ_Plane, [""])
sketch12.MapMode = "FlatFace"
sketch12.AttachmentOffset = App.Placement(Vector(0, 0, 14), App.Rotation())
sketch12.addGeometry([
    Part.LineSegment(Vector(-3.89, 1.8, 0), Vector(6, 1.8, 0)),
    Part.LineSegment(Vector(6, 1.8, 0), Vector(6, 3, 0)),
    Part.LineSegment(Vector(6, 3, 0), Vector(-3.07, 3, 0)),
    Part.LineSegment(Vector(-3.07, 3, 0), Vector(-0.27, 2.74, 0)),
    Part.LineSegment(Vector(-0.27, 2.74, 0), Vector(-0.27, 2.3, 0)),
    Part.LineSegment(Vector(-0.27, 2.3, 0), Vector(-3.89, 2.46, 0)),
    Part.LineSegment(Vector(-3.89, 2.46, 0), Vector(-3.89, 1.8, 0)),
    Part.LineSegment(Vector(-6, 3, 0), Vector(-6, 1.8, 0)),
    Part.LineSegment(Vector(-6, 1.8, 0), Vector(-5.19, 1.8, 0)),
    Part.LineSegment(Vector(-5.19, 1.8, 0), Vector(-5.19, 2.36, 0)),
    Part.LineSegment(Vector(-5.19, 2.36, 0), Vector(-5.65, 2.36, 0)),
    Part.LineSegment(Vector(-5.65, 2.36, 0), Vector(-5.65, 2.68, 0)),
    Part.LineSegment(Vector(-5.65, 2.68, 0), Vector(-4.36, 3, 0)),
    Part.LineSegment(Vector(-4.36, 3, 0), Vector(-6, 3, 0)),
], False)
sketch12.addConstraint([
    Sketcher.Constraint("Coincident", 0, 2, 1, 1),
    Sketcher.Constraint("Coincident", 1, 2, 2, 1),
    Sketcher.Constraint("Coincident", 2, 2, 3, 1),
    Sketcher.Constraint("Coincident", 3, 2, 4, 1),
    Sketcher.Constraint("Coincident", 4, 2, 5, 1),
    Sketcher.Constraint("Coincident", 5, 2, 6, 1),
    Sketcher.Constraint("Coincident", 6, 2, 0, 1),
    Sketcher.Constraint("Coincident", 7, 2, 8, 1),
    Sketcher.Constraint("Coincident", 8, 2, 9, 1),
    Sketcher.Constraint("Coincident", 9, 2, 10, 1),
    Sketcher.Constraint("Coincident", 10, 2, 11, 1),
    Sketcher.Constraint("Coincident", 11, 2, 12, 1),
    Sketcher.Constraint("Coincident", 12, 2, 13, 1),
    Sketcher.Constraint("Coincident", 13, 2, 7, 1),
    Sketcher.Constraint("Horizontal", 0),
    Sketcher.Constraint("Vertical", 1),
    Sketcher.Constraint("Horizontal", 2),
    Sketcher.Constraint("Vertical", 4),
    Sketcher.Constraint("Vertical", 6),
    Sketcher.Constraint("Vertical", 7),
    Sketcher.Constraint("Horizontal", 8),
    Sketcher.Constraint("Vertical", 9),
    Sketcher.Constraint("Horizontal", 10),
    Sketcher.Constraint("Vertical", 11),
    Sketcher.Constraint("Horizontal", 13),
    Sketcher.Constraint("Symmetric", 0, 2, 7, 2, -2),
    Sketcher.Constraint("Horizontal", 2, 2, 12, 2),
    Sketcher.Constraint("DistanceY", 1, 1, 1, 2, Q("1.2 mm")),
    Sketcher.Constraint("DistanceX", -1, 1, 0, 2, Q("6 mm")),
    Sketcher.Constraint("DistanceY", -1, 1, 1, 2, Q("3 mm")),
    Sketcher.Constraint("DistanceX", 13, 2, 13, 1, Q("1.643151 mm")),
    Sketcher.Constraint("DistanceY", 9, 1, 9, 2, Q("0.563032 mm")),
    Sketcher.Constraint("DistanceX", 0, 1, 0, 2, Q("9.892814 mm")),
    Sketcher.Constraint("DistanceX", 2, 2, 2, 1, Q("9.073436 mm")),
    Sketcher.Constraint("DistanceX", 8, 1, 8, 2, Q("0.811693 mm")),
    Sketcher.Constraint("DistanceX", 10, 2, 10, 1, Q("0.462605 mm")),
    Sketcher.Constraint("DistanceY", 4, 2, 4, 1, Q("0.435515 mm")),
    Sketcher.Constraint("DistanceY", 6, 2, 6, 1, Q("0.655957 mm")),
    Sketcher.Constraint("DistanceY", 11, 1, 11, 2, Q("0.315244 mm")),
    Sketcher.Constraint("DistanceX", 3, 2, -1, 1, Q("0.267088 mm")),
    Sketcher.Constraint("DistanceY", 5, 2, 3, 2, Q("0.28062 mm")),
])
pocket7 = doc.addObject("PartDesign::Pocket", "Pocket006")
body.addObject(pocket7)
pocket7.Profile = sketch12
pocket7.Type = "ThroughAll"

sketch13 = doc.addObject("Sketcher::SketchObject", "Sketch012")
body.addObject(sketch13)
sketch13.AttachmentSupport = (doc.XY_Plane, [""])
sketch13.MapMode = "FlatFace"
sketch13.addGeometry([
    Part.LineSegment(Vector(14, 6, 0), Vector(14, -6, 0)),
    Part.LineSegment(Vector(14, -6, 0), Vector(12, -6, 0)),
    Part.LineSegment(Vector(12, -6, 0), Vector(12, 6, 0)),
    Part.LineSegment(Vector(12, 6, 0), Vector(14, 6, 0)),
], False)
sketch13.addConstraint([
    Sketcher.Constraint("Coincident", 0, 2, 1, 1),
    Sketcher.Constraint("Coincident", 1, 2, 2, 1),
    Sketcher.Constraint("Coincident", 2, 2, 3, 1),
    Sketcher.Constraint("Coincident", 3, 2, 0, 1),
    Sketcher.Constraint("Vertical", 0),
    Sketcher.Constraint("Horizontal", 1),
    Sketcher.Constraint("Vertical", 2),
    Sketcher.Constraint("Horizontal", 3),
    Sketcher.Constraint("DistanceX", 1, 2, 1, 1, Q("2 mm")),
    Sketcher.Constraint("DistanceY", 0, 2, 0, 1, Q("12 mm")),
    Sketcher.Constraint("DistanceX", -1, 1, 0, 2, Q("14 mm")),
    Sketcher.Constraint("DistanceY", 0, 2, -1, 1, Q("6 mm")),
])
pad6 = doc.addObject("PartDesign::Pad", "Pad005")
body.addObject(pad6)
pad6.Profile = sketch13
pad6.Length = 2
pad6.Reversed = True

sketch14 = doc.addObject("Sketcher::SketchObject", "Sketch013")
body.addObject(sketch14)
sketch14.AttachmentSupport = (doc.YZ_Plane, [""])
sketch14.MapMode = "FlatFace"
sketch14.AttachmentOffset = App.Placement(Vector(0, 0, 14), App.Rotation())
sketch14.addGeometry([
    Part.LineSegment(Vector(6, -1.15, 0), Vector(-2.48, -2, 0)),
    Part.LineSegment(Vector(-2.48, -2, 0), Vector(6, -2, 0)),
    Part.LineSegment(Vector(6, -2, 0), Vector(6, -1.15, 0)),
    Part.LineSegment(Vector(-4.32, -2, 0), Vector(-6, -1.58, 0)),
    Part.LineSegment(Vector(-6, -1.58, 0), Vector(-6, -2, 0)),
    Part.LineSegment(Vector(-6, -2, 0), Vector(-4.32, -2, 0)),
], False)
sketch14.addConstraint([
    Sketcher.Constraint("Coincident", 0, 2, 1, 1),
    Sketcher.Constraint("Coincident", 1, 2, 2, 1),
    Sketcher.Constraint("Coincident", 2, 2, 0, 1),
    Sketcher.Constraint("Coincident", 3, 2, 4, 1),
    Sketcher.Constraint("Coincident", 4, 2, 5, 1),
    Sketcher.Constraint("Coincident", 5, 2, 3, 1),
    Sketcher.Constraint("Horizontal", 1),
    Sketcher.Constraint("Vertical", 2),
    Sketcher.Constraint("Vertical", 4),
    Sketcher.Constraint("Horizontal", 5),
    Sketcher.Constraint("Symmetric", 1, 2, 4, 2, -2),
    Sketcher.Constraint("DistanceY", 0, 2, -1, 1, Q("2 mm")),
    Sketcher.Constraint("DistanceX", -1, 1, 1, 2, Q("6 mm")),
    Sketcher.Constraint("DistanceX", 5, 1, 5, 2, Q("1.677629 mm")),
    Sketcher.Constraint("DistanceY", 2, 1, 2, 2, Q("0.847069 mm")),
    Sketcher.Constraint("DistanceX", 1, 1, 1, 2, Q("8.477443 mm")),
    Sketcher.Constraint("DistanceY", 4, 2, 4, 1, Q("0.423535 mm")),
])
pocket8 = doc.addObject("PartDesign::Pocket", "Pocket007")
body.addObject(pocket8)
pocket8.Profile = sketch14
pocket8.Type = "ThroughAll"

sketch15 = doc.addObject("Sketcher::SketchObject", "Sketch014")
body.addObject(sketch15)
sketch15.AttachmentSupport = (doc.YZ_Plane, [""])
sketch15.MapMode = "FlatFace"
sketch15.AttachmentOffset = App.Placement(Vector(0, 0, 14), App.Rotation())
sketch15.addGeometry([
    Part.LineSegment(Vector(-1.85, -1.54, 0), Vector(6, -0.75, 0)),
    Part.LineSegment(Vector(6, -0.75, 0), Vector(6, 0, 0)),
    Part.LineSegment(Vector(6, 0, 0), Vector(3.77, 0, 0)),
    Part.LineSegment(Vector(3.77, 0, 0), Vector(3.77, -0.57, 0)),
    Part.LineSegment(Vector(3.77, -0.57, 0), Vector(-1.98, -1.15, 0)),
    Part.LineSegment(Vector(-1.98, -1.15, 0), Vector(-1.85, -1.54, 0)),
], False)
sketch15.addConstraint([
    Sketcher.Constraint("Coincident", 0, 2, 1, 1),
    Sketcher.Constraint("Coincident", 1, 2, 2, 1),
    Sketcher.Constraint("Coincident", 2, 2, 3, 1),
    Sketcher.Constraint("Coincident", 3, 2, 4, 1),
    Sketcher.Constraint("Coincident", 4, 2, 5, 1),
    Sketcher.Constraint("Coincident", 5, 2, 0, 1),
    Sketcher.Constraint("Vertical", 1),
    Sketcher.Constraint("Horizontal", 2),
    Sketcher.Constraint("Vertical", 3),
    Sketcher.Constraint("PointOnObject", 1, 2, -1),
    Sketcher.Constraint("Parallel", 0, 4),
    Sketcher.Constraint("DistanceX", -1, 1, 0, 2, Q("6 mm")),
    Sketcher.Constraint("DistanceX", 2, 2, 2, 1, Q("2.227641 mm")),
    Sketcher.Constraint("DistanceX", 4, 2, 5, 2, Q("0.128198 mm")),
    Sketcher.Constraint("DistanceY", 1, 1, 1, 2, Q("0.753392 mm")),
    Sketcher.Constraint("DistanceY", 3, 2, 3, 1, Q("0.570903 mm")),
    Sketcher.Constraint("DistanceY", 5, 2, 3, 2, Q("0.96702 mm")),
    Sketcher.Constraint("Distance", 0, Q("7.890665 mm")),
])
pocket9 = doc.addObject("PartDesign::Pocket", "Pocket008")
body.addObject(pocket9)
pocket9.Profile = sketch15
pocket9.Type = "ThroughAll"

sketch16 = doc.addObject("Sketcher::SketchObject", "Sketch015")
body.addObject(sketch16)
sketch16.AttachmentSupport = (doc.YZ_Plane, [""])
sketch16.MapMode = "FlatFace"
sketch16.AttachmentOffset = App.Placement(Vector(0, 0, 14), App.Rotation())
sketch16.addGeometry([
    Part.LineSegment(Vector(3.8, -0.6, 0), Vector(-2, -0.6, 0)),
    Part.LineSegment(Vector(-2, -0.6, 0), Vector(-2, -1.1, 0)),
    Part.LineSegment(Vector(-2, -1.1, 0), Vector(3.8, -0.6, 0)),
], False)
sketch16.addConstraint([
    Sketcher.Constraint("Coincident", 0, 2, 1, 1),
    Sketcher.Constraint("Coincident", 1, 2, 2, 1),
    Sketcher.Constraint("Coincident", 2, 2, 0, 1),
    Sketcher.Constraint("Horizontal", 0),
    Sketcher.Constraint("DistanceX", 0, 2, 1, 2, Q("0.0064 mm")),
    Sketcher.Constraint("Distance", 1, Q("0.57479 mm")),
    Sketcher.Constraint("DistanceX", 0, 2, 0, 1, Q("5.758524 mm")),
    Sketcher.Constraint("DistanceX", -1, 1, 2, 2, Q("3.772359 mm")),
    Sketcher.Constraint("DistanceY", 0, 2, -1, 1, Q("0.570903 mm")),
])
pocket10 = doc.addObject("PartDesign::Pocket", "Pocket009")
body.addObject(pocket10)
pocket10.Profile = sketch16
pocket10.Type = "ThroughAll"

sketch17 = doc.addObject("Sketcher::SketchObject", "Sketch016")
body.addObject(sketch17)
sketch17.AttachmentSupport = (doc.XZ_Plane, [""])
sketch17.MapMode = "FlatFace"
sketch17.AttachmentOffset = App.Placement(Vector(0, 0, -29.75), App.Rotation())
sketch17.addGeometry([
    Part.LineSegment(Vector(-14.5, 1.5, 0), Vector(-15, 1.5, 0)),
    Part.LineSegment(Vector(-15, 1.5, 0), Vector(-15, 2, 0)),
    Part.ArcOfCircle(Part.Circle(Vector(-14.5, 2, 0), Vector(0, 0, 1), 0.5), math.radians(-90), math.radians(180)),
], False)
sketch17.addConstraint([
    Sketcher.Constraint("Coincident", 0, 2, 1, 1),
    Sketcher.Constraint("Tangent", 1, 2, 2, 2),
    Sketcher.Constraint("Tangent", 2, 1, 0, 1),
    Sketcher.Constraint("Horizontal", 0),
    Sketcher.Constraint("Vertical", 1),
    Sketcher.Constraint("Radius", 2, Q("0.5 mm")),
    Sketcher.Constraint("DistanceY", -1, 1, 2, 3, Q("2 mm")),
    Sketcher.Constraint("DistanceX", 0, 2, -1, 1, Q("15 mm")),
])
pad7 = doc.addObject("PartDesign::Pad", "Pad006")
body.addObject(pad7)
pad7.Profile = sketch17
pad7.Length = 59.5

sketch18 = doc.addObject("Sketcher::SketchObject", "Sketch017")
body.addObject(sketch18)
sketch18.AttachmentSupport = (doc.YZ_Plane, [""])
sketch18.MapMode = "FlatFace"
sketch18.AttachmentOffset = App.Placement(Vector(0, 0, -15), App.Rotation())
sketch18.addGeometry([
    Part.LineSegment(Vector(28.4, 1.5, 0), Vector(-28.4, 1.5, 0)),
    Part.LineSegment(Vector(-28.4, 1.5, 0), Vector(-28.4, 2.5, 0)),
    Part.LineSegment(Vector(-28.4, 2.5, 0), Vector(28.4, 2.5, 0)),
    Part.LineSegment(Vector(28.4, 2.5, 0), Vector(28.4, 1.5, 0)),
], False)
sketch18.addConstraint([
    Sketcher.Constraint("Coincident", 0, 2, 1, 1),
    Sketcher.Constraint("Coincident", 1, 2, 2, 1),
    Sketcher.Constraint("Coincident", 2, 2, 3, 1),
    Sketcher.Constraint("Coincident", 3, 2, 0, 1),
    Sketcher.Constraint("Horizontal", 0),
    Sketcher.Constraint("Vertical", 1),
    Sketcher.Constraint("Horizontal", 2),
    Sketcher.Constraint("Vertical", 3),
    Sketcher.Constraint("DistanceY", 1, 1, 1, 2, Q("1 mm")),
    Sketcher.Constraint("DistanceX", 0, 2, 0, 1, Q("56.9 mm")),
    Sketcher.Constraint("DistanceY", -1, 1, 0, 2, Q("1.5 mm")),
    Sketcher.Constraint("DistanceX", 0, 2, -1, 1, Q("28.45 mm")),
])
pocket11 = doc.addObject("PartDesign::Pocket", "Pocket010")
body.addObject(pocket11)
pocket11.Profile = sketch18
pocket11.Length = 2
pocket11.Reversed = True

doc.recompute()
